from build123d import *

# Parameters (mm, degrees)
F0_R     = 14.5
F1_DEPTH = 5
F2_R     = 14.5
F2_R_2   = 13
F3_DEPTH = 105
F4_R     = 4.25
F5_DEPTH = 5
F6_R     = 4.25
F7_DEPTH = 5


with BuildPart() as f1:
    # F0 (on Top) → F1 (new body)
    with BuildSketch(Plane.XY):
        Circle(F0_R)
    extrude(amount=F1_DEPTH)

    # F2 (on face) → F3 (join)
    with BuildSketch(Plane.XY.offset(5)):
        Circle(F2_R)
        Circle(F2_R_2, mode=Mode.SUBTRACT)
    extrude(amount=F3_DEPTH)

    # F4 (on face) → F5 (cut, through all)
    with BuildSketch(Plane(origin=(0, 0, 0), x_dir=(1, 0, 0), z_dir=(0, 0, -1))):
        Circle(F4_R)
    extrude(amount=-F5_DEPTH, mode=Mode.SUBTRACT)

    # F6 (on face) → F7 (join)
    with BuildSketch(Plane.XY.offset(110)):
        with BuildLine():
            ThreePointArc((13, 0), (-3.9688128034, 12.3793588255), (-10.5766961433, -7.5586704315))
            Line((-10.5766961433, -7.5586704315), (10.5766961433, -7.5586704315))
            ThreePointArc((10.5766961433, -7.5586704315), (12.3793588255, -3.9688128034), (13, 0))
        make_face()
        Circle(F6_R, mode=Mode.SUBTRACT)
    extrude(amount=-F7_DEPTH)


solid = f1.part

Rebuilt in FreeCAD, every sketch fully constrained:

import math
import FreeCAD as App
import Part
import Sketcher

V = App.Vector

doc = App.newDocument("Part")
body = doc.addObject("PartDesign::Body", "Body")

sketch1 = body.newObject("Sketcher::SketchObject", "Sketch")
sketch1.AttachmentSupport = (doc.getObject("XY_Plane"), [""])
sketch1.MapMode = "FlatFace"
sketch1.addGeometry(Part.Circle(V(0, 0, 0), V(0, 0, 1), 14), False)
sketch1.addConstraint(Sketcher.Constraint("Coincident", 0, 3, -1, 1))
sketch1.addConstraint(Sketcher.Constraint("Diameter", 0, 29.0))
pad1 = body.newObject("PartDesign::Pad", "Pad")
pad1.Profile = sketch1
pad1.Length = 5

sketch2 = body.newObject("Sketcher::SketchObject", "Sketch001")
sketch2.AttachmentSupport = (doc.getObject("XY_Plane"), [""])
sketch2.MapMode = "FlatFace"
sketch2.AttachmentOffset = App.Placement(V(0, 0, 5), App.Rotation())
sketch2.addGeometry(Part.Circle(V(0, 0, 0), V(0, 0, 1), 14), False)
sketch2.addGeometry(Part.Circle(V(0, 0, 0), V(0, 0, 1), 13), False)
sketch2.addConstraint(Sketcher.Constraint("Coincident", 0, 3, -1, 1))
sketch2.addConstraint(Sketcher.Constraint("Coincident", 1, 3, -1, 1))
sketch2.addConstraint(Sketcher.Constraint("Diameter", 0, 29.0))
sketch2.addConstraint(Sketcher.Constraint("Diameter", 1, 26.0))
pad2 = body.newObject("PartDesign::Pad", "Pad001")
pad2.Profile = sketch2
pad2.Length = 105

sketch3 = body.newObject("Sketcher::SketchObject", "Sketch002")
sketch3.AttachmentSupport = (doc.getObject("XY_Plane"), [""])
sketch3.MapMode = "FlatFace"
sketch3.addGeometry(Part.Circle(V(0, 0, 0), V(0, 0, 1), 4.2), False)
sketch3.addConstraint(Sketcher.Constraint("Coincident", 0, 3, -1, 1))
sketch3.addConstraint(Sketcher.Constraint("Diameter", 0, 8.5))
pocket1 = body.newObject("PartDesign::Pocket", "Pocket")
pocket1.Profile = sketch3
pocket1.Type = "ThroughAll"
pocket1.Reversed = True

sketch4 = body.newObject("Sketcher::SketchObject", "Sketch003")
sketch4.AttachmentSupport = (doc.getObject("XY_Plane"), [""])
sketch4.MapMode = "FlatFace"
sketch4.AttachmentOffset = App.Placement(V(0, 0, 110), App.Rotation())
sketch4.addGeometry(Part.ArcOfCircle(Part.Circle(V(0, 0, 0), V(0, 0, 1), 13), math.radians(0), math.radians(216)), False)
sketch4.addGeometry(Part.LineSegment(V(-10.6, -7.6, 0), V(10.6, -7.6, 0)), False)
sketch4.addGeometry(Part.ArcOfCircle(Part.Circle(V(0, 0, 0), V(0, 0, 1), 13), math.radians(-36), math.radians(0)), False)
sketch4.addGeometry(Part.Circle(V(0, 0, 0), V(0, 0, 1), 4.2), False)
sketch4.addConstraint(Sketcher.Constraint("Coincident", 0, 2, 1, 1))
sketch4.addConstraint(Sketcher.Constraint("Coincident", 1, 2, 2, 1))
sketch4.addConstraint(Sketcher.Constraint("Tangent", 2, 2, 0, 1))
sketch4.addConstraint(Sketcher.Constraint("Horizontal", 1))
sketch4.addConstraint(Sketcher.Constraint("Coincident", 0, 3, -1, 1))
sketch4.addConstraint(Sketcher.Constraint("Coincident", 3, 3, -1, 1))
sketch4.addConstraint(Sketcher.Constraint("Equal", 0, 2))
sketch4.addConstraint(Sketcher.Constraint("PointOnObject", 2, 2, -1))
sketch4.addConstraint(Sketcher.Constraint("Radius", 0, 13.0))
sketch4.addConstraint(Sketcher.Constraint("Diameter", 3, 8.5))
sketch4.addConstraint(Sketcher.Constraint("DistanceX", 1, 1, 1, 2, 21.153392))
pad3 = body.newObject("PartDesign::Pad", "Pad002")
pad3.Profile = sketch4
pad3.Length = 5
pad3.Reversed = True

doc.recompute()
